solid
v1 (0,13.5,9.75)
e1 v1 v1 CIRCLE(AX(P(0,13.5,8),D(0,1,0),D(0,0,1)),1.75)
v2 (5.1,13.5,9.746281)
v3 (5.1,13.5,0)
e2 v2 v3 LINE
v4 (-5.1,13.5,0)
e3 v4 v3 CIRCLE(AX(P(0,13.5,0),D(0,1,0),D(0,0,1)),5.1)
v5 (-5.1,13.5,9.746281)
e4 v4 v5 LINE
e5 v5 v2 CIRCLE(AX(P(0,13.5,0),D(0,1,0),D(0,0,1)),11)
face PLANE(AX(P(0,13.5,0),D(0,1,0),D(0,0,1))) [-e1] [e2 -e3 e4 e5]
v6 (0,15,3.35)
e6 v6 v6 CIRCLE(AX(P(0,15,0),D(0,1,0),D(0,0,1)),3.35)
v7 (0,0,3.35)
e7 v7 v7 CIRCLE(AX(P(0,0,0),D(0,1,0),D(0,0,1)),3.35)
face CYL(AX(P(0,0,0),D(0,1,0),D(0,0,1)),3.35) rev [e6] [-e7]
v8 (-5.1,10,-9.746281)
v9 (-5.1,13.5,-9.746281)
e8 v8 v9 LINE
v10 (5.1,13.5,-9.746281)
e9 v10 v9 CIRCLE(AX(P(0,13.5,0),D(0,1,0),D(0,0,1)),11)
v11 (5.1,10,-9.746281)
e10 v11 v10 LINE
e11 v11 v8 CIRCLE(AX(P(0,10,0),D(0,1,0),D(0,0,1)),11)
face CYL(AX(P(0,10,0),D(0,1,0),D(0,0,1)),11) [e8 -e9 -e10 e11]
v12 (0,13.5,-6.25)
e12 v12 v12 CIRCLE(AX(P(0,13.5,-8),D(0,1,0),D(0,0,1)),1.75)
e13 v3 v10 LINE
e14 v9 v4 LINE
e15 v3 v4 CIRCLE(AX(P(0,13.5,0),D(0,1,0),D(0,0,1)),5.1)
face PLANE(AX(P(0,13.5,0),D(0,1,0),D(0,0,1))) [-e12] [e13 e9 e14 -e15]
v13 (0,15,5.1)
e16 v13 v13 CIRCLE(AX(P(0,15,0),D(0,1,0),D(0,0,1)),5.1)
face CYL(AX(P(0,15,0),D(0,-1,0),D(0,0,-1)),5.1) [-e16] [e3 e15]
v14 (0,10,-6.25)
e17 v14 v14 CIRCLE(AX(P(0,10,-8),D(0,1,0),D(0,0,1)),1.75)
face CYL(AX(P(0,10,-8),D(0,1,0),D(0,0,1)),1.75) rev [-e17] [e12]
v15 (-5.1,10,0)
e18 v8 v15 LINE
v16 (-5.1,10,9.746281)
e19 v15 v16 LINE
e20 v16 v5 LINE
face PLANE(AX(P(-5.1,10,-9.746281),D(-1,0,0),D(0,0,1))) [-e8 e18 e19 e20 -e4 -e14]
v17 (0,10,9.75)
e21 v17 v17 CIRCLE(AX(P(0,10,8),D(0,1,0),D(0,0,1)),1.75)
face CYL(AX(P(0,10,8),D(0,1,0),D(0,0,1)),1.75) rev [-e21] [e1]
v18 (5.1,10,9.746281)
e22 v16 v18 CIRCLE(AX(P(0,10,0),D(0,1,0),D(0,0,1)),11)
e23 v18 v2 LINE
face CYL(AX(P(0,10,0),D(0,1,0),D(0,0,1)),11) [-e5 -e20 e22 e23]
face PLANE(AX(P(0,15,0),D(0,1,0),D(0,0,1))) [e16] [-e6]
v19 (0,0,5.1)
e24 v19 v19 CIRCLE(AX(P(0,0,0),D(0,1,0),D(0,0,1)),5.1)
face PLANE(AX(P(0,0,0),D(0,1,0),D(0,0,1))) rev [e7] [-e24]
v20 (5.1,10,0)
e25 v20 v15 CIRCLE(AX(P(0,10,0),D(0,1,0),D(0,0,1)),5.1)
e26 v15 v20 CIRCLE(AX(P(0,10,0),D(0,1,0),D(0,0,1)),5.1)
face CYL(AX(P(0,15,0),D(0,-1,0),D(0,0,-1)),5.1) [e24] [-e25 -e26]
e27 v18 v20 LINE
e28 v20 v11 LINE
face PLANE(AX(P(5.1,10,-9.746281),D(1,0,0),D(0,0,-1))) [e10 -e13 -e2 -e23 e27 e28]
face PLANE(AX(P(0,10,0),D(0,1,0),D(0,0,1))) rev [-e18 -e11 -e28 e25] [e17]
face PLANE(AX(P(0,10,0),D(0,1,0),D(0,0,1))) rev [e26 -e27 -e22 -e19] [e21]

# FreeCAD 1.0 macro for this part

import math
import FreeCAD as App
import Part
import Sketcher

doc = App.newDocument("Part")
params = doc.addObject("Spreadsheet::Sheet", "Params")
for row, (alias, value) in enumerate([
    ("sketch1_diameter", "10.2 mm"),
    ("pad1_length", "15 mm"),
    ("sketch2_radius", "11 mm"),
    ("sketch2_diameter", "3.5 mm"),
    ("pad2_length", "3.5 mm"),
    ("sketch3_diameter", "6.7 mm"),
], start=1):
    params.set(f"A{row}", alias)
    params.set(f"B{row}", "=" + value)
    params.setAlias(f"B{row}", alias)

body = doc.addObject("PartDesign::Body", "Body")

sketch1 = body.newObject("Sketcher::SketchObject", "Sketch")
sketch1.AttachmentSupport = (doc.getObject("XZ_Plane"), [""])
sketch1.MapMode = "FlatFace"
sketch1.addGeometry(Part.Circle(App.Vector(0, 0, 0), App.Vector(0, 0, 1), 5), False)
sketch1.addConstraint([
    Sketcher.Constraint("Coincident", 0, 3, -1, 1),
    Sketcher.Constraint("Diameter", 0, 10.2),
])
sketch1.setExpression("Constraints[1]", "Params.sketch1_diameter")
pad1 = body.newObject("PartDesign::Pad", "Pad")
pad1.Profile = sketch1
pad1.setExpression("Length", "Params.pad1_length")
pad1.Reversed = True

sketch2 = body.newObject("Sketcher::SketchObject", "Sketch001")
sketch2.AttachmentSupport = (doc.getObject("XZ_Plane"), [""])
sketch2.MapMode = "FlatFace"
sketch2.AttachmentOffset = App.Placement(App.Vector(0, 0, -13.5), App.Rotation())
sketch2.addGeometry([
    Part.LineSegment(App.Vector(-5.1, -9.7, 0), App.Vector(-5.1, 9.7, 0)),
    Part.ArcOfCircle(Part.Circle(App.Vector(0, 0, 0), App.Vector(0, 0, 1), 11), math.radians(62), math.radians(118)),
    Part.LineSegment(App.Vector(5.1, 9.7, 0), App.Vector(5.1, -9.7, 0)),
    Part.ArcOfCircle(Part.Circle(App.Vector(0, 0, 0), App.Vector(0, 0, 1), 11), math.radians(-118), math.radians(-62)),
    Part.Circle(App.Vector(0, 8, 0), App.Vector(0, 0, 1), 1.8),
    Part.Circle(App.Vector(0, -8, 0), App.Vector(0, 0, 1), 1.8),
], False)
sketch2.addConstraint([
    Sketcher.Constraint("Coincident", 0, 2, 1, 2),
    Sketcher.Constraint("Coincident", 1, 1, 2, 1),
    Sketcher.Constraint("Coincident", 2, 2, 3, 2),
    Sketcher.Constraint("Coincident", 3, 1, 0, 1),
    Sketcher.Constraint("Vertical", 0),
    Sketcher.Constraint("Vertical", 2),
    Sketcher.Constraint("Coincident", 1, 3, -1, 1),
    Sketcher.Constraint("Coincident", 3, 3, -1, 1),
    Sketcher.Constraint("Equal", 1, 3),
    Sketcher.Constraint("Equal", 4, 5),
    Sketcher.Constraint("Symmetric", 4, 3, 5, 3, -1, 1),
    Sketcher.Constraint("PointOnObject", 4, 3, -2),
    Sketcher.Constraint("Horizontal", 0, 2, 1, 1),
    Sketcher.Constraint("Radius", 1, 11.0),
    Sketcher.Constraint("Diameter", 4, 3.5),
    Sketcher.Constraint("DistanceY", -1, 1, 4, 3, 8.0),
    Sketcher.Constraint("DistanceX", 0, 2, -1, 1, 5.1),
])
sketch2.setExpression("Constraints[13]", "Params.sketch2_radius")
sketch2.setExpression("Constraints[14]", "Params.sketch2_diameter")
pad2 = body.newObject("PartDesign::Pad", "Pad001")
pad2.Profile = sketch2
pad2.setExpression("Length", "Params.pad2_length")

sketch3 = body.newObject("Sketcher::SketchObject", "Sketch002")
sketch3.AttachmentSupport = (doc.getObject("XZ_Plane"), [""])
sketch3.MapMode = "FlatFace"
sketch3.AttachmentOffset = App.Placement(App.Vector(0, 0, -15), App.Rotation())
sketch3.addGeometry(Part.Circle(App.Vector(0, 0, 0), App.Vector(0, 0, 1), 3.4), False)
sketch3.addConstraint([
    Sketcher.Constraint("Coincident", 0, 3, -1, 1),
    Sketcher.Constraint("Diameter", 0, 6.7),
])
sketch3.setExpression("Constraints[1]", "Params.sketch3_diameter")
pocket1 = body.newObject("PartDesign::Pocket", "Pocket")
pocket1.Profile = sketch3
pocket1.Type = "ThroughAll"
pocket1.Reversed = True

doc.recompute()
